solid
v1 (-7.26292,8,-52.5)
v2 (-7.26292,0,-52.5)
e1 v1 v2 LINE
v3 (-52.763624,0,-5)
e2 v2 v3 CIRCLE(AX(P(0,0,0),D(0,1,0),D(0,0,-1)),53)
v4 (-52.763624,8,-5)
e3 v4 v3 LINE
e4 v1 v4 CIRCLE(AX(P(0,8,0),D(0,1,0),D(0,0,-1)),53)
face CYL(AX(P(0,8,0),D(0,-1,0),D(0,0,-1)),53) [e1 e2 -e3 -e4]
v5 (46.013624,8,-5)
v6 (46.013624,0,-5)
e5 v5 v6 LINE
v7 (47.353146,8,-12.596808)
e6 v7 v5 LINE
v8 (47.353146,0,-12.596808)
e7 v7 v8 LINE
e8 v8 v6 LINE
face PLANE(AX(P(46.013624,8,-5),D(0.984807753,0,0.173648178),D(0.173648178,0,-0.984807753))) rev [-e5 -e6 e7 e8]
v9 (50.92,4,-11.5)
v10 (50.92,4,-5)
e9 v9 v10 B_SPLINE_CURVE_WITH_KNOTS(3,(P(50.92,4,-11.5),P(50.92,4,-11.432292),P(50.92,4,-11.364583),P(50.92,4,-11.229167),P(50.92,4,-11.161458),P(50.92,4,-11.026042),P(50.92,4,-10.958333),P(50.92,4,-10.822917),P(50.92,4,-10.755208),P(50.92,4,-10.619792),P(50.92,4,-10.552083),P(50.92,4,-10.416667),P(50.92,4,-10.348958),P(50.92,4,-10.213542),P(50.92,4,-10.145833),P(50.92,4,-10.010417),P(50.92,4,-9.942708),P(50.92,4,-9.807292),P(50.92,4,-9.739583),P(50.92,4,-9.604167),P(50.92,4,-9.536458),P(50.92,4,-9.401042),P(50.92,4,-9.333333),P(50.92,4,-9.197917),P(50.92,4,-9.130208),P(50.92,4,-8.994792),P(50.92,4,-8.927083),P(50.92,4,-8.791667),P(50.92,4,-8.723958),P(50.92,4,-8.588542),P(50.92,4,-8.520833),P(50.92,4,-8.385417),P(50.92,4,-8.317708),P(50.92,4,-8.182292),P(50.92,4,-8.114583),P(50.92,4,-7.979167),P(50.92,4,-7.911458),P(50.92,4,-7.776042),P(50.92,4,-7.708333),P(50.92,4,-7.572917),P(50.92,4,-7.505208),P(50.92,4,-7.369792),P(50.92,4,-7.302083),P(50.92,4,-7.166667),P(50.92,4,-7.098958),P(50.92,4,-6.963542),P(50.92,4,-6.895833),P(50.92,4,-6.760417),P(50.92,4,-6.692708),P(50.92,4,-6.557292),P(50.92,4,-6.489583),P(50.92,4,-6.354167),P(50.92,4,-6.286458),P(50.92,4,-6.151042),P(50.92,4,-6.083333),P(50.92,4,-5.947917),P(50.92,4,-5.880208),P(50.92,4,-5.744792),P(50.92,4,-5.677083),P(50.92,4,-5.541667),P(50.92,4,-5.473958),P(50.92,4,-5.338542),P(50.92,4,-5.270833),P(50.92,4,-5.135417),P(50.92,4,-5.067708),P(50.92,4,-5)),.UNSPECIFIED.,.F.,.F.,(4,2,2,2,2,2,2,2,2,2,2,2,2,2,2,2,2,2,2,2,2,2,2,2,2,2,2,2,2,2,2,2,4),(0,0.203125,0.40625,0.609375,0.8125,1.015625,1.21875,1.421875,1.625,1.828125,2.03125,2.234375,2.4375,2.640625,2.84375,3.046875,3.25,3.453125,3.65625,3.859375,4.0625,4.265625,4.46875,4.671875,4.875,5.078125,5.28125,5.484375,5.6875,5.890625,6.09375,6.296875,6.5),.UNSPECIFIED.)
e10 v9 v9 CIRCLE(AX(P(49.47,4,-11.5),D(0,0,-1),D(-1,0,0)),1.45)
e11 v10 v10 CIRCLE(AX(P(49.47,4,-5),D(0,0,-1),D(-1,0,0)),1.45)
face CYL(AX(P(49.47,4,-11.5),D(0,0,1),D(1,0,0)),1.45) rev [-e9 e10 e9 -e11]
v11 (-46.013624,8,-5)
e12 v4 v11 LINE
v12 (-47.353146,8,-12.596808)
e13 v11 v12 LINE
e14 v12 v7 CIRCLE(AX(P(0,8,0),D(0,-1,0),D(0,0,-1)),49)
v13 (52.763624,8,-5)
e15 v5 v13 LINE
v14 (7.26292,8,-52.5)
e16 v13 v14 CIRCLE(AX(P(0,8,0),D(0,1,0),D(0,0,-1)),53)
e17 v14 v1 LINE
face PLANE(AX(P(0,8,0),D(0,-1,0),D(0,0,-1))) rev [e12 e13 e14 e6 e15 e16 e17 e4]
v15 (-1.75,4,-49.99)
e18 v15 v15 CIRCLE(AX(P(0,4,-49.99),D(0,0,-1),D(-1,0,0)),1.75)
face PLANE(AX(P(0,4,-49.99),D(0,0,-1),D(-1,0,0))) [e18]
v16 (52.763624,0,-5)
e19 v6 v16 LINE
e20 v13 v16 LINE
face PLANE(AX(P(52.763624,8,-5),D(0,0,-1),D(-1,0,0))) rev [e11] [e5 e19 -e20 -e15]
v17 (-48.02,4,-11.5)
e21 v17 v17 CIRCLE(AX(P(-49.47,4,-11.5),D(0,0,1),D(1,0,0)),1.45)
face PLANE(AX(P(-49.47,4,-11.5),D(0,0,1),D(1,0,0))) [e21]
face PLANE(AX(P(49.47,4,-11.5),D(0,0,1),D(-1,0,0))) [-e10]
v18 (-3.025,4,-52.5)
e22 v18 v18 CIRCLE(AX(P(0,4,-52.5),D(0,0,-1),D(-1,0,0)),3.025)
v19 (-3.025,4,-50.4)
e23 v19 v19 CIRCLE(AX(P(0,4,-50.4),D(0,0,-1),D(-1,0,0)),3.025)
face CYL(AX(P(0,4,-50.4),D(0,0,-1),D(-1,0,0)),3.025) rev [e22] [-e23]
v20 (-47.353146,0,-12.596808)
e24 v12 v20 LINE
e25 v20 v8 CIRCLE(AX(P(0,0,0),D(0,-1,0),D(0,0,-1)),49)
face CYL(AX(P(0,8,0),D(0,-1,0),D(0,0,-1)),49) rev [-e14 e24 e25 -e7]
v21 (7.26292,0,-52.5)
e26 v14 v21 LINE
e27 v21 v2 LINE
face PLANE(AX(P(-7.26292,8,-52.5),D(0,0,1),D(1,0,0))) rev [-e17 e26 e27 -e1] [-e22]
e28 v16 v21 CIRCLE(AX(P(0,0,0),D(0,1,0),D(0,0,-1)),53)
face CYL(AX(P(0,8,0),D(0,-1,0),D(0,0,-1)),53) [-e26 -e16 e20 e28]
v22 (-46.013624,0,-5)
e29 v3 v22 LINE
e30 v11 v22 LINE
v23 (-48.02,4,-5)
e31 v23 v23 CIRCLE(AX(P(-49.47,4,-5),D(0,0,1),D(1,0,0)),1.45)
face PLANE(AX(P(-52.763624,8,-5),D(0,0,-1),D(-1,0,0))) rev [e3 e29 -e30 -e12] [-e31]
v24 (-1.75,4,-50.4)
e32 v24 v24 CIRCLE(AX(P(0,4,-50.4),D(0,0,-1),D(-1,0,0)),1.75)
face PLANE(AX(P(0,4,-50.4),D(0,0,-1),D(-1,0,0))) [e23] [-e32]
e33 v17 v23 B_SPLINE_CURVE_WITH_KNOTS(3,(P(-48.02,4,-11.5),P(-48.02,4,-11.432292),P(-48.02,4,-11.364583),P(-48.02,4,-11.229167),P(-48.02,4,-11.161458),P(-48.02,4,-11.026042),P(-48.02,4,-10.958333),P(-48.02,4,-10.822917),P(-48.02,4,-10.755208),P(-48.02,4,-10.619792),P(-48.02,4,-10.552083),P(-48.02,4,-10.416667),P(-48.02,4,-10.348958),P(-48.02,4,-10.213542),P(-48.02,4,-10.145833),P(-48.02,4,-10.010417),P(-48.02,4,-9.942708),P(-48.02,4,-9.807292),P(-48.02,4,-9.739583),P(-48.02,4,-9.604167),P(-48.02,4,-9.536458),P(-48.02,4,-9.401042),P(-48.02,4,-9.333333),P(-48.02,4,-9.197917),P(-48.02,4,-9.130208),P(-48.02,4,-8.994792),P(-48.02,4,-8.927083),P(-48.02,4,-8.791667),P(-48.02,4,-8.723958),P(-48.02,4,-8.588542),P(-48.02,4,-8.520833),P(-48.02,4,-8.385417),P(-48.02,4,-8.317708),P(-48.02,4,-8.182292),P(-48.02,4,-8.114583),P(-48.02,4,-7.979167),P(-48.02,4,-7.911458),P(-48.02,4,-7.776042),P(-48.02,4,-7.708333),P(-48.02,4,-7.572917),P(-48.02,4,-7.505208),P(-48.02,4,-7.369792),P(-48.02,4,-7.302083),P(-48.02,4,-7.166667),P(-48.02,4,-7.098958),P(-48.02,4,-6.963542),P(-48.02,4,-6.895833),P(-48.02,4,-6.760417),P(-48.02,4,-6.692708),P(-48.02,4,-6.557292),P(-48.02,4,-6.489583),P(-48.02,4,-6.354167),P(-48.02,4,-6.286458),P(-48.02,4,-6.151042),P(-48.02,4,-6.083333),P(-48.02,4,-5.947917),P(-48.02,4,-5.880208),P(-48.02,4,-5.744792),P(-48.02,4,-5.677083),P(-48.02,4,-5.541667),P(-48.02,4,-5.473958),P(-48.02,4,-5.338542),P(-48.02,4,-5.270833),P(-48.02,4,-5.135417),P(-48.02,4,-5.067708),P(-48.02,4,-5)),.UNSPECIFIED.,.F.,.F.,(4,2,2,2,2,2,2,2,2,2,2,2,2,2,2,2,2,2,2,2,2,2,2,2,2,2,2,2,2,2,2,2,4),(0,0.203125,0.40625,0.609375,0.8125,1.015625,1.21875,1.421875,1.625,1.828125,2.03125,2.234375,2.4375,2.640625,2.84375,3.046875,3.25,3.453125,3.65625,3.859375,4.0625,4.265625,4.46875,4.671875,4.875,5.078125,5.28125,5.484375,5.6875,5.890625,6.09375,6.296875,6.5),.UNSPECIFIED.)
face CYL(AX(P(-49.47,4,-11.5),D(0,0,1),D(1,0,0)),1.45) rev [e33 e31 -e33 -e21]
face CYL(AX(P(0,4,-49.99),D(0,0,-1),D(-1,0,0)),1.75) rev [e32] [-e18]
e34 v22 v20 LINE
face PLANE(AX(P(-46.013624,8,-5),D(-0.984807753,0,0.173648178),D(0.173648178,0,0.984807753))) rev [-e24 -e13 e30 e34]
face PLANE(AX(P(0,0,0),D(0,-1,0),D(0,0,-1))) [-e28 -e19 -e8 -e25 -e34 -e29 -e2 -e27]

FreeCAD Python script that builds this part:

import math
import FreeCAD as App
import Part
import Sketcher
Q = App.Units.Quantity

doc = App.newDocument("Part")
body = doc.addObject("PartDesign::Body", "Body")

sketch1 = body.newObject("Sketcher::SketchObject", "Sketch")
sketch1.AttachmentSupport = (doc.getObject("XZ_Plane"), [""])
sketch1.MapMode = "FlatFace"
sketch1.addGeometry([
    Part.LineSegment(App.Vector(46, -5, 0), App.Vector(53, -5, 0)),
    Part.ArcOfCircle(Part.Circle(App.Vector(0, 0, 0), App.Vector(0, 0, 1), 53), math.radians(-82), math.radians(-5)),
    Part.LineSegment(App.Vector(7, -52, 0), App.Vector(-7, -52, 0)),
    Part.ArcOfCircle(Part.Circle(App.Vector(0, 0, 0), App.Vector(0, 0, 1), 53), math.radians(-175), math.radians(-98)),
    Part.LineSegment(App.Vector(-53, -5, 0), App.Vector(-46, -5, 0)),
    Part.LineSegment(App.Vector(-46, -5, 0), App.Vector(-47, -13, 0)),
    Part.ArcOfCircle(Part.Circle(App.Vector(0, 0, 0), App.Vector(0, 0, 1), 49), math.radians(-165), math.radians(-15)),
    Part.LineSegment(App.Vector(47, -13, 0), App.Vector(46, -5, 0)),
], False)
sketch1.addConstraint([
    Sketcher.Constraint("Coincident", 0, 2, 1, 2),
    Sketcher.Constraint("Coincident", 1, 1, 2, 1),
    Sketcher.Constraint("Coincident", 2, 2, 3, 2),
    Sketcher.Constraint("Coincident", 3, 1, 4, 1),
    Sketcher.Constraint("Coincident", 4, 2, 5, 1),
    Sketcher.Constraint("Coincident", 5, 2, 6, 1),
    Sketcher.Constraint("Coincident", 6, 2, 7, 1),
    Sketcher.Constraint("Coincident", 7, 2, 0, 1),
    Sketcher.Constraint("Horizontal", 0),
    Sketcher.Constraint("Horizontal", 2),
    Sketcher.Constraint("Horizontal", 4),
    Sketcher.Constraint("Coincident", 1, 3, -1, 1),
    Sketcher.Constraint("Coincident", 3, 3, -1, 1),
    Sketcher.Constraint("Coincident", 6, 3, -1, 1),
    Sketcher.Constraint("Equal", 1, 3),
    Sketcher.Constraint("Symmetric", 4, 2, 7, 2, -2),
    Sketcher.Constraint("Horizontal", 5, 2, 6, 2),
    Sketcher.Constraint("Radius", 1, Q("53 mm")),
    Sketcher.Constraint("Radius", 6, Q("49 mm")),
    Sketcher.Constraint("Angle", 5, Q("-100 deg")),
    Sketcher.Constraint("DistanceY", 0, 2, -1, 1, Q("5 mm")),
    Sketcher.Constraint("DistanceX", 0, 1, 0, 2, Q("6.75 mm")),
    Sketcher.Constraint("DistanceY", 1, 1, -1, 1, Q("52.5 mm")),
])
pad1 = body.newObject("PartDesign::Pad", "Pad")
pad1.Profile = sketch1
pad1.Length = 8
pad1.Reversed = True

sketch2 = body.newObject("Sketcher::SketchObject", "Sketch001")
sketch2.AttachmentSupport = (doc.getObject("XY_Plane"), [""])
sketch2.MapMode = "FlatFace"
sketch2.AttachmentOffset = App.Placement(App.Vector(0, 0, -52.5), App.Rotation())
sketch2.addGeometry(Part.Circle(App.Vector(0, 4, 0), App.Vector(0, 0, 1), 3), False)
sketch2.addConstraint([
    Sketcher.Constraint("PointOnObject", 0, 3, -2),
    Sketcher.Constraint("Diameter", 0, Q("6.05 mm")),
    Sketcher.Constraint("DistanceY", -1, 1, 0, 3, Q("4 mm")),
])
pocket1 = body.newObject("PartDesign::Pocket", "Pocket")
pocket1.Profile = sketch2
pocket1.Length = 2.1
pocket1.Reversed = True

sketch3 = body.newObject("Sketcher::SketchObject", "Sketch002")
sketch3.AttachmentSupport = (doc.getObject("XY_Plane"), [""])
sketch3.MapMode = "FlatFace"
sketch3.AttachmentOffset = App.Placement(App.Vector(0, 0, -5), App.Rotation())
sketch3.addGeometry(Part.Circle(App.Vector(-49.5, 4, 0), App.Vector(0, 0, 1), 1.4), False)
sketch3.addConstraint([
    Sketcher.Constraint("Diameter", 0, Q("2.9 mm")),
    Sketcher.Constraint("DistanceY", -1, 1, 0, 3, Q("4 mm")),
    Sketcher.Constraint("DistanceX", 0, 3, -1, 1, Q("49.47 mm")),
])
pocket2 = body.newObject("PartDesign::Pocket", "Pocket001")
pocket2.Profile = sketch3
pocket2.Length = 6.5
doc.recompute()

mirrored = body.newObject("PartDesign::Mirrored", "Mirrored")
mirrored.Originals = [pocket2]
mirrored.MirrorPlane = (doc.getObject("YZ_Plane"), [""])
body.Tip = mirrored

sketch4 = body.newObject("Sketcher::SketchObject", "Sketch003")
sketch4.AttachmentSupport = (doc.getObject("XY_Plane"), [""])
sketch4.MapMode = "FlatFace"
sketch4.AttachmentOffset = App.Placement(App.Vector(0, 0, -50.4), App.Rotation())
sketch4.addGeometry(Part.Circle(App.Vector(0, 4, 0), App.Vector(0, 0, 1), 1.8), False)
sketch4.addConstraint([
    Sketcher.Constraint("PointOnObject", 0, 3, -2),
    Sketcher.Constraint("Diameter", 0, Q("3.5 mm")),
    Sketcher.Constraint("DistanceY", -1, 1, 0, 3, Q("4 mm")),
])
pocket3 = body.newObject("PartDesign::Pocket", "Pocket002")
pocket3.Profile = sketch4
pocket3.Length = 0.41
pocket3.Reversed = True

doc.recompute()
